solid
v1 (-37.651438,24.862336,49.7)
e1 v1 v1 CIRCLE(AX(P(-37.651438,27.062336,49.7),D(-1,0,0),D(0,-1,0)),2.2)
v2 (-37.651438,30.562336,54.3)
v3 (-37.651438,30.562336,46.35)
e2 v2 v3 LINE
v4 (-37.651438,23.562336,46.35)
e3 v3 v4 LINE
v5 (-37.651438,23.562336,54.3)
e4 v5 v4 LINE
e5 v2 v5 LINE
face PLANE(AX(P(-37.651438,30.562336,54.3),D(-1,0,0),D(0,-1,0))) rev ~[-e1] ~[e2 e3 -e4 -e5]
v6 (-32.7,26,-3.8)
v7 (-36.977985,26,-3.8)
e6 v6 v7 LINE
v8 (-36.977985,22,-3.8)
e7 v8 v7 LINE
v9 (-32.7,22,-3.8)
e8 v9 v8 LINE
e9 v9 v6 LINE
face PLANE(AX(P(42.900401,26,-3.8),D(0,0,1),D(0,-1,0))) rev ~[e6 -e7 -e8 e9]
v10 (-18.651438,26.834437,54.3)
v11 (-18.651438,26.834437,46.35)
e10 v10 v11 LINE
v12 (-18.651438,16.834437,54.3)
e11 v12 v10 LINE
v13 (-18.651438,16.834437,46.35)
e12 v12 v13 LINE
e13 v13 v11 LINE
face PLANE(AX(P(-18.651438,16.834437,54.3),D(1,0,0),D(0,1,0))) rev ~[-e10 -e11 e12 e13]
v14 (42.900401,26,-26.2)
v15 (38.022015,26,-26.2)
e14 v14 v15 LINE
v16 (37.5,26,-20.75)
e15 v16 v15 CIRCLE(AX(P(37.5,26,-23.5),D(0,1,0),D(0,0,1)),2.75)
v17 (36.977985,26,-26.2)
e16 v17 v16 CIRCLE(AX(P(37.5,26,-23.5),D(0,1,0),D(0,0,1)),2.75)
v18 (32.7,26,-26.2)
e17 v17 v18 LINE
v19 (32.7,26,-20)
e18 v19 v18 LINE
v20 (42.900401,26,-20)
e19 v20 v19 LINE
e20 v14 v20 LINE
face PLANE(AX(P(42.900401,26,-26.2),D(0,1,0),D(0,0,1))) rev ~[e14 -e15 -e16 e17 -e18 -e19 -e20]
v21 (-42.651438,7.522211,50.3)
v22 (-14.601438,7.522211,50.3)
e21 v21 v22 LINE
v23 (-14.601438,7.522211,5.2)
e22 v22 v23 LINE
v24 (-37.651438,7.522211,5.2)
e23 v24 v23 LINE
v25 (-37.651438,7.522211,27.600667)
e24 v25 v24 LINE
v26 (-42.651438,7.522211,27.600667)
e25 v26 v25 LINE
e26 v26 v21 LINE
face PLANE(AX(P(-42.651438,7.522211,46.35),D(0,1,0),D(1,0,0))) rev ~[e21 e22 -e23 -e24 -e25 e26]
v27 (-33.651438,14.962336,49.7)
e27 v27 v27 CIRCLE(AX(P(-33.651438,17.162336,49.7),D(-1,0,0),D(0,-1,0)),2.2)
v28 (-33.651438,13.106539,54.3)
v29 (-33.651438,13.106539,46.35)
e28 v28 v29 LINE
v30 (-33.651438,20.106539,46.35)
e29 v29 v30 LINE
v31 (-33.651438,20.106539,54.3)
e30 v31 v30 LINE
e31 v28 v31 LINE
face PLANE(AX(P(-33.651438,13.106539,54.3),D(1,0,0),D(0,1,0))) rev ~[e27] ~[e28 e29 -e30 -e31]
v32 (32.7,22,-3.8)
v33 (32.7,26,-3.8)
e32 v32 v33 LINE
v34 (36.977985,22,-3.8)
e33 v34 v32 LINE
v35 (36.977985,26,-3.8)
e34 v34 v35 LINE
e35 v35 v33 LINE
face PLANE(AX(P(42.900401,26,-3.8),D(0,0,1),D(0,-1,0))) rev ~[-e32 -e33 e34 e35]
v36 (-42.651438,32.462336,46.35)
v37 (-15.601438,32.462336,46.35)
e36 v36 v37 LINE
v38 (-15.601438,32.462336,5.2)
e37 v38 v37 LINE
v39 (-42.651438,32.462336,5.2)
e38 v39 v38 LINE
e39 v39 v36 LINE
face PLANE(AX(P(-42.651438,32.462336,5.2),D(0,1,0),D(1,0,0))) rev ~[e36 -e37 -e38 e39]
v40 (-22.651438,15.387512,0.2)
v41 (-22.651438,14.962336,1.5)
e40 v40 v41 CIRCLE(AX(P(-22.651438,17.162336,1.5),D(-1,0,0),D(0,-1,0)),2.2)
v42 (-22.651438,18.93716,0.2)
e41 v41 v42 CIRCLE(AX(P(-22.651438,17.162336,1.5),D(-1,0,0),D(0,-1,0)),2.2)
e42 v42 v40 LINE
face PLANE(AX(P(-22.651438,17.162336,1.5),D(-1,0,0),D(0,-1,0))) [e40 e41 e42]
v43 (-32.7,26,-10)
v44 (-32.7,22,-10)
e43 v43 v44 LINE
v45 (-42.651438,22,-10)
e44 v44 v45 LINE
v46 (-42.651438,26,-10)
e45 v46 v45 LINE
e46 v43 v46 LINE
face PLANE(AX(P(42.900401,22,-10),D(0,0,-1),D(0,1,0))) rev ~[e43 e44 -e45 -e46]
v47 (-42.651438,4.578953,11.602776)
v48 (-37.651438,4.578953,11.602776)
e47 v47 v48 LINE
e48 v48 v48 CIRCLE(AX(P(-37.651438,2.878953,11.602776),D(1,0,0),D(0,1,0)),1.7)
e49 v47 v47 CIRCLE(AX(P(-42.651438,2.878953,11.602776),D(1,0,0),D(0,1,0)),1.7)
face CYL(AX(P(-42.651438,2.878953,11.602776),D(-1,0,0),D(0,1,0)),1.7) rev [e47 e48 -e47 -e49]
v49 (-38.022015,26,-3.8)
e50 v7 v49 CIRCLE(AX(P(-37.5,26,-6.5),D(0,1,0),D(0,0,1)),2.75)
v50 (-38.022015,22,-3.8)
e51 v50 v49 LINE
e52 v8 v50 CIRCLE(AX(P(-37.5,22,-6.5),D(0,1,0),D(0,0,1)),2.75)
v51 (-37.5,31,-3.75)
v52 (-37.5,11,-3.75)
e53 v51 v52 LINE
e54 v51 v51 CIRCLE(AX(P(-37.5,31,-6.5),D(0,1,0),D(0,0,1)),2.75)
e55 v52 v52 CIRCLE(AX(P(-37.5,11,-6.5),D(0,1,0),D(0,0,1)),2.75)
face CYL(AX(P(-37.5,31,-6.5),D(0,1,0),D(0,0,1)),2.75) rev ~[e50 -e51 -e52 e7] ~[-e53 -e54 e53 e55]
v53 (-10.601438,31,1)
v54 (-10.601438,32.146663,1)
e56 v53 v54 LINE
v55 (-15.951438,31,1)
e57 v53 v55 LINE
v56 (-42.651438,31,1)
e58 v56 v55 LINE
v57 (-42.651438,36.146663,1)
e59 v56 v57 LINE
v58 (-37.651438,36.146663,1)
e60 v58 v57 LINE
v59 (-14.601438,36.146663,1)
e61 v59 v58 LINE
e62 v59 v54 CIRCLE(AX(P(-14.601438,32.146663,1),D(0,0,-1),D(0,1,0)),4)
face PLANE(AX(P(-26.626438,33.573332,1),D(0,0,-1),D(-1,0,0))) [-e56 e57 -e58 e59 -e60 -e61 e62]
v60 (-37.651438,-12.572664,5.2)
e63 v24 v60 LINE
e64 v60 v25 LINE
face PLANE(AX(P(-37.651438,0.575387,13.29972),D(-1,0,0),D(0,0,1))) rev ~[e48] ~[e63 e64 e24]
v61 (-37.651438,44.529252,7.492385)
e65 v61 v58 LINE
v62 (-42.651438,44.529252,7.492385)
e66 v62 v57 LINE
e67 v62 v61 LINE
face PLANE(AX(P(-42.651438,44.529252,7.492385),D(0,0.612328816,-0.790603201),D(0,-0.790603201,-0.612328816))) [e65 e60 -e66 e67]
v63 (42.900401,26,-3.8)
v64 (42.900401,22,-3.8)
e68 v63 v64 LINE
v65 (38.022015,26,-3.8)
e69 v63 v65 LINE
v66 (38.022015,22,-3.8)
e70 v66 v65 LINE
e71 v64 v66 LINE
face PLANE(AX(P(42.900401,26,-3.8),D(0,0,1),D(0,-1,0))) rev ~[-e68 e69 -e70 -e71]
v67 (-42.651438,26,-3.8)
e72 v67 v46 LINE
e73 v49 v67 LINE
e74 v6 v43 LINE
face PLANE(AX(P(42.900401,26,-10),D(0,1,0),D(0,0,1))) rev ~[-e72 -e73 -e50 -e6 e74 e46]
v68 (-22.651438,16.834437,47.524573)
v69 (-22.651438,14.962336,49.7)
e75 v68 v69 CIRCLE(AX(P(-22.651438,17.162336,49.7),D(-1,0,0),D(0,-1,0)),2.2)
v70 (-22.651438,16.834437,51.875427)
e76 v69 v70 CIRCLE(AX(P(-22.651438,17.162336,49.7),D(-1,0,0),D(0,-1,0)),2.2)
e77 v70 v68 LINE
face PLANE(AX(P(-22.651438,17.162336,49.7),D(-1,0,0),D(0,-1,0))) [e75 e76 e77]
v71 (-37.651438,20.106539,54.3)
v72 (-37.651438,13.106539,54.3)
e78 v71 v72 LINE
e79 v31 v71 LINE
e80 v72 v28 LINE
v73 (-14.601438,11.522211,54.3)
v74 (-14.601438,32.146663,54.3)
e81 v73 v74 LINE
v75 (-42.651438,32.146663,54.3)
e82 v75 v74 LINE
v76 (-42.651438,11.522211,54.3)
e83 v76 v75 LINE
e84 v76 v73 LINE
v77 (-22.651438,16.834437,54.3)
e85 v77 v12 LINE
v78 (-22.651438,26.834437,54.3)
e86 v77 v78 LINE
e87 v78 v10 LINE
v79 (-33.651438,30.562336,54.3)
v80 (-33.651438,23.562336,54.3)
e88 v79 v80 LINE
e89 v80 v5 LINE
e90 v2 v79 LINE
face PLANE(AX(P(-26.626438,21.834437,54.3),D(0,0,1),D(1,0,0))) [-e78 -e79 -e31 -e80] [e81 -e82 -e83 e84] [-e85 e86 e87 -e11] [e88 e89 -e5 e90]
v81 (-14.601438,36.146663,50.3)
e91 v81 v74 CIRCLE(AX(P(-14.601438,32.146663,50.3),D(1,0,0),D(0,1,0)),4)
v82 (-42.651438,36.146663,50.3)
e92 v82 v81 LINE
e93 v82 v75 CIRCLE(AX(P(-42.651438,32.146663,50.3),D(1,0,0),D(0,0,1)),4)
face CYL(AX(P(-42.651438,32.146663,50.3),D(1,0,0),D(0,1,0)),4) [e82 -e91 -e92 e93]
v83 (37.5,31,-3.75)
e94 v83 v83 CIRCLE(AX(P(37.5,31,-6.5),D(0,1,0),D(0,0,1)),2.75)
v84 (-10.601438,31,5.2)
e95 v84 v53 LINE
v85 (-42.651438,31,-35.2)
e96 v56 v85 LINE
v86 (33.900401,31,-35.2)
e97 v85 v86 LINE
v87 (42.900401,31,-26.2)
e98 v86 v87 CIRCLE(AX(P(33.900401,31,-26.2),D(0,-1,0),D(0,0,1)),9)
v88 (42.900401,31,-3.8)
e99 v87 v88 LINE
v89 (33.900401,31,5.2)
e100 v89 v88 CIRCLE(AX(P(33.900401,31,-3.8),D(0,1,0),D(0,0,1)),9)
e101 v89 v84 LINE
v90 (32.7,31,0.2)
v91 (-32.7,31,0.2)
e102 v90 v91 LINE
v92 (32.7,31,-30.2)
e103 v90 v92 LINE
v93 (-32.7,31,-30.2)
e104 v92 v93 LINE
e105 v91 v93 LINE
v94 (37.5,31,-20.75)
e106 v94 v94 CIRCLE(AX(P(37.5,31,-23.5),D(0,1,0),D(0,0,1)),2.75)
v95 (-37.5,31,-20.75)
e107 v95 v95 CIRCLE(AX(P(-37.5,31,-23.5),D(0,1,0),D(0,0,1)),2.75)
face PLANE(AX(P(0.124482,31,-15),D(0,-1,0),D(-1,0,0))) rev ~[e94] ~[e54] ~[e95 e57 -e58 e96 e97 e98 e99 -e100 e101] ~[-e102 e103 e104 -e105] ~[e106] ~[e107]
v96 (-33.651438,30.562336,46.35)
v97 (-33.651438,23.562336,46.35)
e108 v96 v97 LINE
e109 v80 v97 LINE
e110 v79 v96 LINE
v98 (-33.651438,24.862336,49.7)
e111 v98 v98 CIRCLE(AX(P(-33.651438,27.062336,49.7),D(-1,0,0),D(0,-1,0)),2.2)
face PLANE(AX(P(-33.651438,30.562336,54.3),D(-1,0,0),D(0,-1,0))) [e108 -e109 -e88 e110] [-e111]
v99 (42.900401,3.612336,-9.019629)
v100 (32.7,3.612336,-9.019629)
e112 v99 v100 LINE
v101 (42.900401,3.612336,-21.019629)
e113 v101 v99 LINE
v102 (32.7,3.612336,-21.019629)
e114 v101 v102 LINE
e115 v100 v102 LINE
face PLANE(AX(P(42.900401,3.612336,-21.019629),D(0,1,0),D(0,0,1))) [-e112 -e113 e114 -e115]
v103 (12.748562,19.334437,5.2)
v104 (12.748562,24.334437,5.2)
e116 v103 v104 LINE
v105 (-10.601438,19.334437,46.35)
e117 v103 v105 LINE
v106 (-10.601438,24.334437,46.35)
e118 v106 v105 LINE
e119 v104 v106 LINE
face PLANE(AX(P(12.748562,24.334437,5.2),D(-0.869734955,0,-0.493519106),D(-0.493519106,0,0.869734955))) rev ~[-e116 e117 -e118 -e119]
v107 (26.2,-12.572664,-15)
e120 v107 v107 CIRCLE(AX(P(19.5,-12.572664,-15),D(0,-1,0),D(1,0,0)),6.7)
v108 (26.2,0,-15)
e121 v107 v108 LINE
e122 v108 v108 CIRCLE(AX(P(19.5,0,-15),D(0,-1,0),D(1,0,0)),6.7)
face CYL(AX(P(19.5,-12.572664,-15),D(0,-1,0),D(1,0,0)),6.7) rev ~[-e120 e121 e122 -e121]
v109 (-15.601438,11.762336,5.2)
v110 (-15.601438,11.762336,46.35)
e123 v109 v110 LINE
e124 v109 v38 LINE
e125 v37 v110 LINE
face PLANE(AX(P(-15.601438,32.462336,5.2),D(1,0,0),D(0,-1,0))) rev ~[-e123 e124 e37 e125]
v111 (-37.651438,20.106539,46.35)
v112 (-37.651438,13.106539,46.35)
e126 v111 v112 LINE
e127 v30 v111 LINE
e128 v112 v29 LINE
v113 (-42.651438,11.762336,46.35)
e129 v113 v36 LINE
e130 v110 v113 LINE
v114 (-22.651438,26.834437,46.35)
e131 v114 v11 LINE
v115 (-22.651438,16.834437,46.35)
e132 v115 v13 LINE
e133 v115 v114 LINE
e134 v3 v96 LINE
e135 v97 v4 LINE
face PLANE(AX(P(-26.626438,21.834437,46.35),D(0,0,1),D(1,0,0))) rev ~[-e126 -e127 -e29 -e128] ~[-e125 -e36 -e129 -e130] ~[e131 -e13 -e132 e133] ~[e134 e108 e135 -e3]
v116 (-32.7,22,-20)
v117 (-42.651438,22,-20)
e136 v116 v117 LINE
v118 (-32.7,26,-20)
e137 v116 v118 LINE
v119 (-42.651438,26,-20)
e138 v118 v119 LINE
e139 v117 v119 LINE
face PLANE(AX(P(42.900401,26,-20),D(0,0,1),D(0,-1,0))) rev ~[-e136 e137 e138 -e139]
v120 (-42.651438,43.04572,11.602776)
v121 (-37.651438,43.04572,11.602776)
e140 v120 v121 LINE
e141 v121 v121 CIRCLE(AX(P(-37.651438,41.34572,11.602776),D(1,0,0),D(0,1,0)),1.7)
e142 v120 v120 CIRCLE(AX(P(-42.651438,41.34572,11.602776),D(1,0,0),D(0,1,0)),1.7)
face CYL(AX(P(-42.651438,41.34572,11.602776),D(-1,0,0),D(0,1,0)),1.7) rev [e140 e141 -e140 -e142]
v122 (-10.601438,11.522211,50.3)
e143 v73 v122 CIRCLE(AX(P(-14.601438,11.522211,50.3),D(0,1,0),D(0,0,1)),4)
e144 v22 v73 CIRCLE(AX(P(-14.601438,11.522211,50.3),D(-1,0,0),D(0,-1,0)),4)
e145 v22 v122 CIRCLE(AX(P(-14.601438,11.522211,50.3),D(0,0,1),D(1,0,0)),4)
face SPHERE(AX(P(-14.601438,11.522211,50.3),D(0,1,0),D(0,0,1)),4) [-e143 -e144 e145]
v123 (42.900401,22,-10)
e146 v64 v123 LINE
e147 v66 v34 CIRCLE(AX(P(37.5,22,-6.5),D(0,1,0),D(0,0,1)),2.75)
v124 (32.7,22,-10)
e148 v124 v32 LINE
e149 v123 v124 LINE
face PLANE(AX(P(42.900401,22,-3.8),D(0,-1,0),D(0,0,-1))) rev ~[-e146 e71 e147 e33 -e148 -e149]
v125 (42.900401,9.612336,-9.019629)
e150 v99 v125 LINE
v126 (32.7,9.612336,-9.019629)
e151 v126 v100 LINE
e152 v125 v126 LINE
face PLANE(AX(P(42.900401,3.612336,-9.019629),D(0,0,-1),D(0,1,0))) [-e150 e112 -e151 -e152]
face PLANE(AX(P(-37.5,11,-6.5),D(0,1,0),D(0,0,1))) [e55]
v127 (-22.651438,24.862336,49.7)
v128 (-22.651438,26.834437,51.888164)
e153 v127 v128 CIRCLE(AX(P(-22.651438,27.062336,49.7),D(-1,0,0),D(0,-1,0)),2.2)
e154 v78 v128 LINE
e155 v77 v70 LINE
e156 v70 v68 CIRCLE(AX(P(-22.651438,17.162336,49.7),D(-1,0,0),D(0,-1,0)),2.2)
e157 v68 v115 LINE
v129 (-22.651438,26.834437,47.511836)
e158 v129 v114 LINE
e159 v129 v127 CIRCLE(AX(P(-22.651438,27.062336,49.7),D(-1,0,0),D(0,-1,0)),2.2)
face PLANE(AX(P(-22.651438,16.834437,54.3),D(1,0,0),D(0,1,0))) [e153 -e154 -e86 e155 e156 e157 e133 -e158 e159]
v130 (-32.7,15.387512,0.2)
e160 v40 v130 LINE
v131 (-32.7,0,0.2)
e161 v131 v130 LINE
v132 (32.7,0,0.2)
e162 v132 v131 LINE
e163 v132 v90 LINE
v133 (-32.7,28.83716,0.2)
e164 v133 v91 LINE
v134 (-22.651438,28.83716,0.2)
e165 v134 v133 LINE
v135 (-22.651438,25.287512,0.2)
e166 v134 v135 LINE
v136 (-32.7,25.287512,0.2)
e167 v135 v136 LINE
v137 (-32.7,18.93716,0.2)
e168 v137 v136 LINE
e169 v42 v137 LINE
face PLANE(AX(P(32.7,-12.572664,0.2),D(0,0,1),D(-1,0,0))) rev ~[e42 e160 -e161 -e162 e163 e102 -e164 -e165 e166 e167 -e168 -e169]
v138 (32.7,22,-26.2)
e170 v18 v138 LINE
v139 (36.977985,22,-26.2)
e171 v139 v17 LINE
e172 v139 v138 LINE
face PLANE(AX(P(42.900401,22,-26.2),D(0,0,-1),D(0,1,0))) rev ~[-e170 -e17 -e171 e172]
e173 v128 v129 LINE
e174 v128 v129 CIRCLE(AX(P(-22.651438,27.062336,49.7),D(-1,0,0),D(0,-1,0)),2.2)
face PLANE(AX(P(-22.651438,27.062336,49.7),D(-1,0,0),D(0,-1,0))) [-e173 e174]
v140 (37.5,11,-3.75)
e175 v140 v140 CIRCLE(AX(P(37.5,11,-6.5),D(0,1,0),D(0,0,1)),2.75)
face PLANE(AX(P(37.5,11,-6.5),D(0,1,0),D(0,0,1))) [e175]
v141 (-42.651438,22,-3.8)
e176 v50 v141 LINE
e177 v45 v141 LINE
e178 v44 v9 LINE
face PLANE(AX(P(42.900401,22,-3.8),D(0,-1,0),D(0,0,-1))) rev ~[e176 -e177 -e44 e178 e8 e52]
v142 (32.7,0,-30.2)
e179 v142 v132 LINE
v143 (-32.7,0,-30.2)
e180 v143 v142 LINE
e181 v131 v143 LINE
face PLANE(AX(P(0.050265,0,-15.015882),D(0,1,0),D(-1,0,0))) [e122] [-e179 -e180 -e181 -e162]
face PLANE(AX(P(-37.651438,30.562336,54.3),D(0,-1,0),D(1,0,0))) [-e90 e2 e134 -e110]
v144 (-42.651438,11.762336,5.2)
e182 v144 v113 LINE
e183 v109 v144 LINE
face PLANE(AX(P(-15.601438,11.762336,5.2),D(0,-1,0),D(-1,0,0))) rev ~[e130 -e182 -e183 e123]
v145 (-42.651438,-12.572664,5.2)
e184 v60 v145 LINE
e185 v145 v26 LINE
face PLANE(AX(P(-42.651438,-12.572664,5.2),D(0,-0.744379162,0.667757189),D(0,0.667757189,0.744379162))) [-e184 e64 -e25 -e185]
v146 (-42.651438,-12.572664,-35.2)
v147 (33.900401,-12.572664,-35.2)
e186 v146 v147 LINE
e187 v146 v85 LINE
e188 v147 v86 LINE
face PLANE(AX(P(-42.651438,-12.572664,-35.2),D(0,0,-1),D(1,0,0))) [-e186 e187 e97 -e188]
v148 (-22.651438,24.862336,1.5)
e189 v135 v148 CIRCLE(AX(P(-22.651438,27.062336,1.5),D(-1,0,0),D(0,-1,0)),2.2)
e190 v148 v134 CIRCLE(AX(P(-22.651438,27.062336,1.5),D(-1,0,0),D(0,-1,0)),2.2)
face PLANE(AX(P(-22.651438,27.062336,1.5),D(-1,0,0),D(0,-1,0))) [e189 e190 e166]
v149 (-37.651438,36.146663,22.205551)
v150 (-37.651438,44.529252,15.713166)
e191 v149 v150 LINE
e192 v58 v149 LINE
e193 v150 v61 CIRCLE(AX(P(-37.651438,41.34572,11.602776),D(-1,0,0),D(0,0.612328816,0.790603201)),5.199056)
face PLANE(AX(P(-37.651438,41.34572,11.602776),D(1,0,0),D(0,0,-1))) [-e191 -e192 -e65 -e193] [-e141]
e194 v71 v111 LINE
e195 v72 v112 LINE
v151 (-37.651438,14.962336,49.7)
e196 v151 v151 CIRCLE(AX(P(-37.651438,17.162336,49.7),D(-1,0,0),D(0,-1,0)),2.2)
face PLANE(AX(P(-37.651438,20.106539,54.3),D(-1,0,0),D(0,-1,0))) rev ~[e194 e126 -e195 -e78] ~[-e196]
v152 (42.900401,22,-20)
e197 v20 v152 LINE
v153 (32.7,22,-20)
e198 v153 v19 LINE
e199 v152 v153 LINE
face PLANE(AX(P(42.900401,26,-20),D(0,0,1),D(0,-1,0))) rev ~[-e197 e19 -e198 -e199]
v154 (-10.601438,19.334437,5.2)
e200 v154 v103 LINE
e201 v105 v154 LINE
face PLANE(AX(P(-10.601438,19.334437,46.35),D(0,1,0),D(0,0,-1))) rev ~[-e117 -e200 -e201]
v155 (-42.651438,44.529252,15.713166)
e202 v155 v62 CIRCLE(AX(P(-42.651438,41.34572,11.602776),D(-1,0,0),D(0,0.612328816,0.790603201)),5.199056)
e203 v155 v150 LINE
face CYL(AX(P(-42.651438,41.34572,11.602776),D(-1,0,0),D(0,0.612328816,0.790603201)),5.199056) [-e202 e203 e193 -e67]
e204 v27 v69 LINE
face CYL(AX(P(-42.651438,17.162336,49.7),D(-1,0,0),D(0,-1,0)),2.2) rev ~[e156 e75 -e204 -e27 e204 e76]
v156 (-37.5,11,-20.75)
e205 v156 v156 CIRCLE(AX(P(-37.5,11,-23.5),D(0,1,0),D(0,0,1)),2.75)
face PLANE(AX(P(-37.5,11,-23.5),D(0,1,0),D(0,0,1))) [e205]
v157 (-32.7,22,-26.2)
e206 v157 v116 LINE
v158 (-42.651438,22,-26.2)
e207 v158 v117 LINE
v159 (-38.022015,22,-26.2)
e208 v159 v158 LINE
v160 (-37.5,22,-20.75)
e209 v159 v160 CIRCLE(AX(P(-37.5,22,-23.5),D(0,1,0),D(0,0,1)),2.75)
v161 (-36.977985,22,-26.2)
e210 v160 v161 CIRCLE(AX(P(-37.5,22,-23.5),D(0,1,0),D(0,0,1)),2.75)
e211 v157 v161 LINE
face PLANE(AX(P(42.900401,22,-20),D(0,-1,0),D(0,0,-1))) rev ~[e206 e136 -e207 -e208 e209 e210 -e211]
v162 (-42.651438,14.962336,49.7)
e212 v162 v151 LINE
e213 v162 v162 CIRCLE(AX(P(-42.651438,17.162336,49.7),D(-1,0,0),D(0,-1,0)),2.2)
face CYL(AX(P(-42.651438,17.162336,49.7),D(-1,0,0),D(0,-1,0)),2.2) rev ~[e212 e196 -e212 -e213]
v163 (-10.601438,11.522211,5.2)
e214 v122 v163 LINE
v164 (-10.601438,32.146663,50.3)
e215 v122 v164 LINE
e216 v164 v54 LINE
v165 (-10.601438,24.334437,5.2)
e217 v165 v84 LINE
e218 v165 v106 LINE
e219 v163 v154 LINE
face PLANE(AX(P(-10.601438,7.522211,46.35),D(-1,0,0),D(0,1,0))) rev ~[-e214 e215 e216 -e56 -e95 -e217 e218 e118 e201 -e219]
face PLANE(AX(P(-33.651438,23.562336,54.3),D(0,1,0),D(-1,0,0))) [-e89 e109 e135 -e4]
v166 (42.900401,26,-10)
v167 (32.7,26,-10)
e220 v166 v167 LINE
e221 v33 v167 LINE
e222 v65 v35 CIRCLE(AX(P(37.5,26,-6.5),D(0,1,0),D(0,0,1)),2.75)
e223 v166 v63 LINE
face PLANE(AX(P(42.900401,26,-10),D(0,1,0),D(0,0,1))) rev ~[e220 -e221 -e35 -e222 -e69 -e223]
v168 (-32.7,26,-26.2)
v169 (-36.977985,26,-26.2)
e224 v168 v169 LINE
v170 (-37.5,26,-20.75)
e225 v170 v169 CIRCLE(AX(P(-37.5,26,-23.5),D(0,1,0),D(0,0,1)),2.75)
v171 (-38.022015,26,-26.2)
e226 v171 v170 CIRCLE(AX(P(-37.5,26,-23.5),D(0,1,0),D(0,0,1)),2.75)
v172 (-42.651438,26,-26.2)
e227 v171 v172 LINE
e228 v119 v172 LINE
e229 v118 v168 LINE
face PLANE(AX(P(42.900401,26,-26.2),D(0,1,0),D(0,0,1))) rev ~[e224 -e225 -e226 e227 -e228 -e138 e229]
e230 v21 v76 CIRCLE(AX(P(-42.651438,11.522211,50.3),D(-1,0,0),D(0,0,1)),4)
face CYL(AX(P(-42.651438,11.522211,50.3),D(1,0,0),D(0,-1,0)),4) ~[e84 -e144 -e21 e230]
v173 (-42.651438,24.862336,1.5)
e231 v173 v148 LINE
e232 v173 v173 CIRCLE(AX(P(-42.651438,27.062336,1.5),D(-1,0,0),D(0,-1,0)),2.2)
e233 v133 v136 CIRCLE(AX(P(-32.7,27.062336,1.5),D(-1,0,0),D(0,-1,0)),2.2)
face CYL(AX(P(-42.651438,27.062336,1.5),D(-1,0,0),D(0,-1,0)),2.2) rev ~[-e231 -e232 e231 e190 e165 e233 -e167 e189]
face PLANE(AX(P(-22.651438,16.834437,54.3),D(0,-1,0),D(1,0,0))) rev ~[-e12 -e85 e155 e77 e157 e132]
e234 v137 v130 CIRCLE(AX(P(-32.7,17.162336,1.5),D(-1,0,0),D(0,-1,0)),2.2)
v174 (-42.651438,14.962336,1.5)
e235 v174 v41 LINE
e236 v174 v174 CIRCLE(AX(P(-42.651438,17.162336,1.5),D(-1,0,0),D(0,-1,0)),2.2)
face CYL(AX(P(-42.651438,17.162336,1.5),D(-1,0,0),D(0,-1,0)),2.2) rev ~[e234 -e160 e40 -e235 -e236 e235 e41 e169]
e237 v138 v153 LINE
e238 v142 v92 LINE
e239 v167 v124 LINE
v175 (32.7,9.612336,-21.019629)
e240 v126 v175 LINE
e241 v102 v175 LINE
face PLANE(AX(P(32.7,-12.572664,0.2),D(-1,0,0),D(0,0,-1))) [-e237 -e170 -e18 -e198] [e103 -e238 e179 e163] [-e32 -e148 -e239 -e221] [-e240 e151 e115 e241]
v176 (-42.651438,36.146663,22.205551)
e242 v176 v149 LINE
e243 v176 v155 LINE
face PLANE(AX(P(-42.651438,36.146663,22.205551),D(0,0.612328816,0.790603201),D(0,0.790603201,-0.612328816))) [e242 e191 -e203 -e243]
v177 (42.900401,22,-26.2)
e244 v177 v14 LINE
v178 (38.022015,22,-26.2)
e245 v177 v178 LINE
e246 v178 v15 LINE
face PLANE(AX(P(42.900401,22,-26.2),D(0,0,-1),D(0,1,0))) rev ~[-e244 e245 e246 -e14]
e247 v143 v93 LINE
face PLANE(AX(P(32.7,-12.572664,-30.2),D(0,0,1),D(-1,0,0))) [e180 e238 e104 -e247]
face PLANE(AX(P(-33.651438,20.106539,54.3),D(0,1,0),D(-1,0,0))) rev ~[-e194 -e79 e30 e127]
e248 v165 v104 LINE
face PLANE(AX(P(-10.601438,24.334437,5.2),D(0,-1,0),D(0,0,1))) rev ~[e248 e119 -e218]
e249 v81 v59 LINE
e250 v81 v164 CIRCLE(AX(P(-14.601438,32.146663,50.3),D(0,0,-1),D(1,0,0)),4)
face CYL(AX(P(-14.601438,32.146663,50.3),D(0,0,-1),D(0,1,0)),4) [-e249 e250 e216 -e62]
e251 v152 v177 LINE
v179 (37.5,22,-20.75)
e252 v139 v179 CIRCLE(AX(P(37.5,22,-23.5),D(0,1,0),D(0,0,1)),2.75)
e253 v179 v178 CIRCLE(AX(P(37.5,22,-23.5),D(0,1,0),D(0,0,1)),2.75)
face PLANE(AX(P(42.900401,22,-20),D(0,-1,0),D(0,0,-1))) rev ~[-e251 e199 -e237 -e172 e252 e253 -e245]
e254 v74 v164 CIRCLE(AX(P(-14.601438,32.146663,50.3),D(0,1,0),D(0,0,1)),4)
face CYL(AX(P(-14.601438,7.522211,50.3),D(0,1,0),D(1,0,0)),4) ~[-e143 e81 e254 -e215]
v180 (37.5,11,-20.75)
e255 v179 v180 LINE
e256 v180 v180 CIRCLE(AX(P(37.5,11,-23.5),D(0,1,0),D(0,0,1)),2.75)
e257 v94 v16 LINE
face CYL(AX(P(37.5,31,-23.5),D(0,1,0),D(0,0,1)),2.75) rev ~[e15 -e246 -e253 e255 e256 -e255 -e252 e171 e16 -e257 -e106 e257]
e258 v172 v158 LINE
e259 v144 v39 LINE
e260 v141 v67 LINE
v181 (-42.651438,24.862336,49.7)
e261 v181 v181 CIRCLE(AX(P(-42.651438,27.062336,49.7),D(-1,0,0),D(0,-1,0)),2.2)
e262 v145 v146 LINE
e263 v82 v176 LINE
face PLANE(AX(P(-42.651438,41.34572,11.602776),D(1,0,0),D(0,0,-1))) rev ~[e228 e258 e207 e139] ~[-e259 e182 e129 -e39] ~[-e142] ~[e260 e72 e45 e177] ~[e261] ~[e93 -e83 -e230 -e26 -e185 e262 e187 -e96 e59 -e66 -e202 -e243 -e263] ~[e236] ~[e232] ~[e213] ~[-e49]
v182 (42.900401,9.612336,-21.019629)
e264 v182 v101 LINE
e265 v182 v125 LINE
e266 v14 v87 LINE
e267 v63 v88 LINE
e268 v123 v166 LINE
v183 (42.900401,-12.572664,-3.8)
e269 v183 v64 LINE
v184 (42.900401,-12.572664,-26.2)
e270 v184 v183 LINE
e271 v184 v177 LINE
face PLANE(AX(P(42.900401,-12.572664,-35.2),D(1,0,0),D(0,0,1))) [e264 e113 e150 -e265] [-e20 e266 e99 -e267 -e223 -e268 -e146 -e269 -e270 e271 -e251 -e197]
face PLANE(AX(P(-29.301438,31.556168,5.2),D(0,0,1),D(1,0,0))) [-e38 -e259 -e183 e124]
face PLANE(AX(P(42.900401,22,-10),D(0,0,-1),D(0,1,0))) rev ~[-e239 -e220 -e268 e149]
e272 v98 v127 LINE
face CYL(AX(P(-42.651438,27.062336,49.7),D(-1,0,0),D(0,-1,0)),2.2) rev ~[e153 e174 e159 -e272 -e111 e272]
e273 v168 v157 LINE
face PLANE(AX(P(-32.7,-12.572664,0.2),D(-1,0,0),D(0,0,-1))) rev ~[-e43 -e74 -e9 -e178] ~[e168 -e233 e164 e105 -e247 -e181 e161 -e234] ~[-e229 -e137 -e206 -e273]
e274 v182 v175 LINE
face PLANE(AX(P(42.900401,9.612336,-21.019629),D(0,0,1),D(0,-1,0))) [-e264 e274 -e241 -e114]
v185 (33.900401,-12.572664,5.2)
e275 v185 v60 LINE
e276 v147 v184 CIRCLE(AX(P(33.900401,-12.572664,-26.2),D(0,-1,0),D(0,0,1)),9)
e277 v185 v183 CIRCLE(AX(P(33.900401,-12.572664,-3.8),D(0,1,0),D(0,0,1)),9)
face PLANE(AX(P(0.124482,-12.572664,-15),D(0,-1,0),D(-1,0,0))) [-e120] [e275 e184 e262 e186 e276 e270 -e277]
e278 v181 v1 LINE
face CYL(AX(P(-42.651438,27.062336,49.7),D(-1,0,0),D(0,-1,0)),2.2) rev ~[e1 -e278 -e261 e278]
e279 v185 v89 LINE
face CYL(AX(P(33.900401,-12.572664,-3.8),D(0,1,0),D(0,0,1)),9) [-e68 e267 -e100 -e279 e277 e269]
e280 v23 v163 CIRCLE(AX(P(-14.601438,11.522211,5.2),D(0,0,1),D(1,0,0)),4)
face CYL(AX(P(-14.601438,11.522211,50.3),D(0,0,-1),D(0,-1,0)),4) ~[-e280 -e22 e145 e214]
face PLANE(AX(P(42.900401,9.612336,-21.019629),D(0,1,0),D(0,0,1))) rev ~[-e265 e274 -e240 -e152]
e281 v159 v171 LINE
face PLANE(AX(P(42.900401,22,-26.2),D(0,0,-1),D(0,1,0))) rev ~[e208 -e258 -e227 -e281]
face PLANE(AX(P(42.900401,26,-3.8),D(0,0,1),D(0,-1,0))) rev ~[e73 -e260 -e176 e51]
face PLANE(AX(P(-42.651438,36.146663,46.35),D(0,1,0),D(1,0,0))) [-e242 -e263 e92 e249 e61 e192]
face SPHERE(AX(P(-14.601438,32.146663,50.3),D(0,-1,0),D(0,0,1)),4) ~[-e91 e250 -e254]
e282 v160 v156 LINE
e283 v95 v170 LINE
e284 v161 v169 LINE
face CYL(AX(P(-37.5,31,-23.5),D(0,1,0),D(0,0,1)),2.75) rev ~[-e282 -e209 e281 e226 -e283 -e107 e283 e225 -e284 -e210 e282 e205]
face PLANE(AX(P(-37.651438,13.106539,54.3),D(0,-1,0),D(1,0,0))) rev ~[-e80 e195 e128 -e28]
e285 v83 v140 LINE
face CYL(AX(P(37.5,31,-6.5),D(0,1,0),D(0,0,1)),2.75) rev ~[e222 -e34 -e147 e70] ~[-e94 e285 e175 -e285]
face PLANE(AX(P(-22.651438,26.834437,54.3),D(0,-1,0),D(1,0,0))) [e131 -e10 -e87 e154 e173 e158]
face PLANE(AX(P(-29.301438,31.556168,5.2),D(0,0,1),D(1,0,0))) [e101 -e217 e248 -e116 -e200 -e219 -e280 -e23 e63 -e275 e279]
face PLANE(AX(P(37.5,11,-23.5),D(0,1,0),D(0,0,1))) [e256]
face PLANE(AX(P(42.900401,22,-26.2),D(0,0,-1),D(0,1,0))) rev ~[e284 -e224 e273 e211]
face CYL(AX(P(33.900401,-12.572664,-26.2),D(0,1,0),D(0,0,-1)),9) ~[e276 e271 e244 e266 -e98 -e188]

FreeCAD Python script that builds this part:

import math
import FreeCAD as App
import Part
import Sketcher
from FreeCAD import Vector


def edges_at(feature, points):
    """Names of the edges that pass closest to the given points."""
    edges = feature.Shape.Edges
    near = lambda p: min(range(len(edges)), key=lambda i: edges[i].distToShape(Part.Vertex(*p))[0])
    return sorted({f"Edge{near(p) + 1}" for p in points})


def add_polygon(sketch, points):
    """Adds a closed chain of lines whose ends are joined by coincident constraints."""
    first, n = sketch.GeometryCount, len(points)
    for a, b in zip(points, points[1:] + points[:1]):
        sketch.addGeometry(Part.LineSegment(App.Vector(*a, 0), App.Vector(*b, 0)), False)
    for i in range(n):
        sketch.addConstraint(Sketcher.Constraint("Coincident", first + i, 2, first + (i + 1) % n, 1))

doc = App.newDocument("Part")
body = doc.addObject("PartDesign::Body", "Body")

# Sketch on XZ plane
sketch1 = doc.addObject("Sketcher::SketchObject", "Sketch")
body.addObject(sketch1)
sketch1.AttachmentSupport = (doc.XZ_Plane, [""])
sketch1.MapMode = "FlatFace"
add_polygon(sketch1, [(-32.7, -30.2), (32.900401, -30.2), (32.7, 0.2), (-32.7, 0.2)])  # lines 0-3
sketch1.addConstraint([
    Sketcher.Constraint("Horizontal", 0),
    Sketcher.Constraint("Horizontal", 2),
    Sketcher.Constraint("Vertical", 3),
    Sketcher.Constraint("DistanceX", 2, 2, 2, 1, 65.4),
    Sketcher.Constraint("DistanceY", 3, 2, 3, 1, 30.4),
    Sketcher.Constraint("DistanceY", 0, 2, -1, 1, 30.2),
    Sketcher.Constraint("DistanceX", -1, 1, 1, 2, 32.7),
    Sketcher.Constraint("DistanceX", 0, 1, 0, 2, 65.600401),
])
pad1 = doc.addObject("PartDesign::Pad", "Pad")
body.addObject(pad1)
pad1.Profile = sketch1
pad1.Length = 12.572664

# Sketch on XZ plane
sketch2 = doc.addObject("Sketcher::SketchObject", "Sketch001")
body.addObject(sketch2)
sketch2.AttachmentSupport = (doc.XZ_Plane, [""])
sketch2.MapMode = "FlatFace"
sketch2.AttachmentOffset = App.Placement(Vector(0, 0, 12.572664), App.Rotation())
add_polygon(sketch2, [(-42.651438, 5.2), (-42.651438, -35.2), (42.900401, -35.2), (42.900401, 5.2)])  # lines 0-3
add_polygon(sketch2, [(-32.7, 0.2), (32.7, 0.2), (32.7, -30.2), (-32.7, -30.2)])  # lines 4-7
sketch2.addConstraint([
    Sketcher.Constraint("Vertical", 0),
    Sketcher.Constraint("Horizontal", 1),
    Sketcher.Constraint("Vertical", 2),
    Sketcher.Constraint("Horizontal", 3),
    Sketcher.Constraint("Horizontal", 4),
    Sketcher.Constraint("Vertical", 5),
    Sketcher.Constraint("Horizontal", 6),
    Sketcher.Constraint("Vertical", 7),
    Sketcher.Constraint("DistanceX", 4, 1, 4, 2, 65.4),
    Sketcher.Constraint("DistanceY", 0, 2, 0, 1, 40.4),
    Sketcher.Constraint("DistanceY", 5, 2, 5, 1, 30.4),
    Sketcher.Constraint("DistanceY", 4, 2, 2, 2, 5.0),
    Sketcher.Constraint("DistanceY", 0, 2, -1, 1, 35.2),
    Sketcher.Constraint("DistanceX", -1, 1, 4, 2, 32.7),
    Sketcher.Constraint("DistanceX", 1, 1, 1, 2, 85.551838),
    Sketcher.Constraint("DistanceX", -1, 1, 1, 2, 42.900401),
])
pad2 = doc.addObject("PartDesign::Pad", "Pad001")
body.addObject(pad2)
pad2.Profile = sketch2
pad2.Length = 43.572664
pad2.Reversed = True
doc.recompute()

fillet = doc.addObject("PartDesign::Fillet", "Fillet")
body.addObject(fillet)
fillet.Base = (pad2, edges_at(pad2, [(42.9, 9.214, -35.2), (42.9, 9.214, 5.2)]))
fillet.Radius = 9

# Sketch on XZ plane
sketch3 = doc.addObject("Sketcher::SketchObject", "Sketch002")
body.addObject(sketch3)
sketch3.AttachmentSupport = (doc.XZ_Plane, [""])
sketch3.MapMode = "FlatFace"
sketch3.AttachmentOffset = App.Placement(Vector(0, 0, -31), App.Rotation())
sketch3.addGeometry([
    Part.Circle(Vector(-37.5, -23.5, 0), Vector(0, 0, 1), 2.75),
    Part.Circle(Vector(-37.5, -6.5, 0), Vector(0, 0, 1), 2.75),
    Part.Circle(Vector(37.5, -6.5, 0), Vector(0, 0, 1), 2.75),
    Part.Circle(Vector(37.5, -23.5, 0), Vector(0, 0, 1), 2.75),
], False)
sketch3.addConstraint([
    Sketcher.Constraint("Equal", 0, 1),
    Sketcher.Constraint("Equal", 1, 2),
    Sketcher.Constraint("Equal", 2, 3),
    Sketcher.Constraint("Symmetric", 1, 3, 2, 3, -2),
    Sketcher.Constraint("Symmetric", 0, 3, 3, 3, -2),
    Sketcher.Constraint("Vertical", 0, 3, 1, 3),
    Sketcher.Constraint("Diameter", 0, 5.5),
    Sketcher.Constraint("DistanceY", 0, 3, 1, 3, 17.0),
    Sketcher.Constraint("DistanceX", 1, 3, 2, 3, 75.0),
    Sketcher.Constraint("DistanceY", 0, 3, -1, 1, 23.5),
])
pocket1 = doc.addObject("PartDesign::Pocket", "Pocket")
body.addObject(pocket1)
pocket1.Profile = sketch3
pocket1.Length = 20
pocket1.Reversed = True

# Sketch on YZ plane
sketch4 = doc.addObject("Sketcher::SketchObject", "Sketch003")
body.addObject(sketch4)
sketch4.AttachmentSupport = (doc.YZ_Plane, [""])
sketch4.MapMode = "FlatFace"
sketch4.AttachmentOffset = App.Placement(Vector(0, 0, 42.900401), App.Rotation())
add_polygon(sketch4, [(26, -3.8), (22, -3.8), (22, -10), (26, -10)])  # lines 0-3
add_polygon(sketch4, [(26, -26.2), (26, -20), (22, -20), (22, -26.2)])  # lines 4-7
sketch4.addConstraint([
    Sketcher.Constraint("Horizontal", 0),
    Sketcher.Constraint("Vertical", 1),
    Sketcher.Constraint("Horizontal", 2),
    Sketcher.Constraint("Vertical", 3),
    Sketcher.Constraint("Vertical", 4),
    Sketcher.Constraint("Horizontal", 5),
    Sketcher.Constraint("Vertical", 6),
    Sketcher.Constraint("Horizontal", 7),
    Sketcher.Constraint("Vertical", 3, 2, 4, 2),
    Sketcher.Constraint("Vertical", 1, 2, 5, 2),
    Sketcher.Constraint("Equal", 3, 4),
    Sketcher.Constraint("DistanceX", 0, 2, 0, 1, 4.0),
    Sketcher.Constraint("DistanceY", 1, 2, 1, 1, 6.2),
    Sketcher.Constraint("DistanceX", -1, 1, 0, 2, 22.0),
    Sketcher.Constraint("DistanceY", 1, 2, -1, 1, 10.0),
    Sketcher.Constraint("DistanceY", 4, 2, -1, 1, 20.0),
])
pocket2 = doc.addObject("PartDesign::Pocket", "Pocket001")
body.addObject(pocket2)
pocket2.Profile = sketch4
pocket2.Length = 129

# Sketch on XZ plane
sketch5 = doc.addObject("Sketcher::SketchObject", "Sketch004")
body.addObject(sketch5)
sketch5.AttachmentSupport = (doc.XZ_Plane, [""])
sketch5.MapMode = "FlatFace"
sketch5.AttachmentOffset = App.Placement(Vector(0, 0, 12.572664), App.Rotation())
sketch5.addGeometry(Part.Circle(Vector(19.5, -15, 0), Vector(0, 0, 1), 6.7), False)
sketch5.addConstraint([
    Sketcher.Constraint("Diameter", 0, 13.4),
    Sketcher.Constraint("DistanceY", 0, 3, -1, 1, 15.0),
    Sketcher.Constraint("DistanceX", -1, 1, 0, 3, 19.5),
])
pocket3 = doc.addObject("PartDesign::Pocket", "Pocket002")
body.addObject(pocket3)
pocket3.Profile = sketch5
pocket3.Length = 129

# Sketch on YZ plane
sketch6 = doc.addObject("Sketcher::SketchObject", "Sketch005")
body.addObject(sketch6)
sketch6.AttachmentSupport = (doc.YZ_Plane, [""])
sketch6.MapMode = "FlatFace"
sketch6.AttachmentOffset = App.Placement(Vector(0, 0, 42.900401), App.Rotation())
add_polygon(sketch6, [(3.612336, -9.019629), (3.612336, -21.019629), (9.612336, -21.019629), (9.612336, -9.019629)])  # lines 0-3
sketch6.addConstraint([
    Sketcher.Constraint("Vertical", 0),
    Sketcher.Constraint("Horizontal", 1),
    Sketcher.Constraint("Vertical", 2),
    Sketcher.Constraint("Horizontal", 3),
    Sketcher.Constraint("DistanceX", 1, 1, 1, 2, 6.0),
    Sketcher.Constraint("DistanceY", 0, 2, 0, 1, 12.0),
    Sketcher.Constraint("DistanceY", 0, 2, -1, 1, 21.019629),
    Sketcher.Constraint("DistanceX", -1, 1, 0, 2, 3.612336),
])
pocket4 = doc.addObject("PartDesign::Pocket", "Pocket003")
body.addObject(pocket4)
pocket4.Profile = sketch6
pocket4.Length = 63

# Sketch on XY plane
sketch7 = doc.addObject("Sketcher::SketchObject", "Sketch006")
body.addObject(sketch7)
sketch7.AttachmentSupport = (doc.XY_Plane, [""])
sketch7.MapMode = "FlatFace"
sketch7.AttachmentOffset = App.Placement(Vector(0, 0, 5.2), App.Rotation())
add_polygon(sketch7, [(-42.651438, 32.112336), (-42.651438, 31), (-15.951438, 31), (-15.951438, 32.112336)])  # lines 0-3
sketch7.addConstraint([
    Sketcher.Constraint("Vertical", 0),
    Sketcher.Constraint("Horizontal", 1),
    Sketcher.Constraint("Vertical", 2),
    Sketcher.Constraint("Horizontal", 3),
    Sketcher.Constraint("DistanceX", 1, 1, 1, 2, 26.7),
    Sketcher.Constraint("DistanceY", -1, 1, 0, 2, 31.0),
    Sketcher.Constraint("DistanceY", 0, 2, 0, 1, 1.112336),
    Sketcher.Constraint("DistanceX", 0, 2, -1, 1, 42.651438),
])
pad3 = doc.addObject("PartDesign::Pad", "Pad002")
body.addObject(pad3)
pad3.Profile = sketch7
pad3.Length = 4.2
pad3.Reversed = True

# Sketch on XY plane
sketch8 = doc.addObject("Sketcher::SketchObject", "Sketch007")
body.addObject(sketch8)
sketch8.AttachmentSupport = (doc.XY_Plane, [""])
sketch8.MapMode = "FlatFace"
sketch8.AttachmentOffset = App.Placement(Vector(0, 0, 5.2), App.Rotation())
add_polygon(sketch8, [(-42.651438, 11.762336), (-42.651438, 7.522211), (-10.601438, 7.522211), (-10.601438, 36.146663), (-42.651438, 36.146663), (-42.651438, 32.462336), (-15.601438, 32.462336), (-15.601438, 11.762336)])  # lines 0-7
sketch8.addConstraint([
    Sketcher.Constraint("Vertical", 0),
    Sketcher.Constraint("Horizontal", 1),
    Sketcher.Constraint("Vertical", 2),
    Sketcher.Constraint("Horizontal", 3),
    Sketcher.Constraint("Vertical", 4),
    Sketcher.Constraint("Horizontal", 5),
    Sketcher.Constraint("Vertical", 6),
    Sketcher.Constraint("Horizontal", 7),
    Sketcher.Constraint("Vertical", 0, 2, 3, 2),
    Sketcher.Constraint("DistanceY", 6, 2, 6, 1, 20.7),
    Sketcher.Constraint("DistanceX", 5, 2, 2, 2, 5.0),
    Sketcher.Constraint("DistanceX", 1, 1, 1, 2, 32.05),
    Sketcher.Constraint("DistanceY", 0, 2, 0, 1, 4.240125),
    Sketcher.Constraint("DistanceY", 2, 1, 2, 2, 28.624452),
    Sketcher.Constraint("DistanceY", -1, 1, 0, 2, 7.522211),
    Sketcher.Constraint("DistanceX", 0, 2, -1, 1, 42.651438),
])
pad4 = doc.addObject("PartDesign::Pad", "Pad003")
body.addObject(pad4)
pad4.Profile = sketch8
pad4.Length = 41.15

# Sketch on XY plane
sketch9 = doc.addObject("Sketcher::SketchObject", "Sketch008")
body.addObject(sketch9)
sketch9.AttachmentSupport = (doc.XY_Plane, [""])
sketch9.MapMode = "FlatFace"
sketch9.AttachmentOffset = App.Placement(Vector(0, 0, 5.2), App.Rotation())
add_polygon(sketch9, [(-10.601438, 36.146663), (-10.601438, 31), (-42.651438, 31), (-42.651438, 36.146663)])  # lines 0-3
sketch9.addConstraint([
    Sketcher.Constraint("Vertical", 0),
    Sketcher.Constraint("Horizontal", 1),
    Sketcher.Constraint("Vertical", 2),
    Sketcher.Constraint("Horizontal", 3),
    Sketcher.Constraint("DistanceY", -1, 1, 0, 2, 31.0),
    Sketcher.Constraint("DistanceX", 1, 2, 1, 1, 32.05),
    Sketcher.Constraint("DistanceY", 0, 2, 0, 1, 5.146663),
    Sketcher.Constraint("DistanceX", 0, 2, -1, 1, 10.601438),
])
pad5 = doc.addObject("PartDesign::Pad", "Pad004")
body.addObject(pad5)
pad5.Profile = sketch9
pad5.Length = 4.2
pad5.Reversed = True

# Sketch on YZ plane
sketch10 = doc.addObject("Sketcher::SketchObject", "Sketch009")
body.addObject(sketch10)
sketch10.AttachmentSupport = (doc.YZ_Plane, [""])
sketch10.MapMode = "FlatFace"
sketch10.AttachmentOffset = App.Placement(Vector(0, 0, -10.601438), App.Rotation())
add_polygon(sketch10, [(19.334437, 46.35), (19.334437, 5.2), (24.334437, 5.2), (24.334437, 46.35)])  # lines 0-3
sketch10.addConstraint([
    Sketcher.Constraint("Vertical", 0),
    Sketcher.Constraint("Horizontal", 1),
    Sketcher.Constraint("Vertical", 2),
    Sketcher.Constraint("Horizontal", 3),
    Sketcher.Constraint("DistanceX", 1, 1, 1, 2, 5.0),
    Sketcher.Constraint("DistanceY", 0, 2, 0, 1, 41.15),
    Sketcher.Constraint("DistanceY", -1, 1, 0, 2, 5.2),
    Sketcher.Constraint("DistanceX", -1, 1, 0, 2, 19.334437),
])
pad6 = doc.addObject("PartDesign::Pad", "Pad005")
body.addObject(pad6)
pad6.Profile = sketch10
pad6.Length = 23.35

# Sketch on XZ plane
sketch11 = doc.addObject("Sketcher::SketchObject", "Sketch010")
body.addObject(sketch11)
sketch11.AttachmentSupport = (doc.XZ_Plane, [""])
sketch11.MapMode = "FlatFace"
sketch11.AttachmentOffset = App.Placement(Vector(0, 0, -24.334437), App.Rotation())
add_polygon(sketch11, [(12.748562, 5.2), (-10.601438, 46.35), (12.748562, 46.35)])  # lines 0-2
sketch11.addConstraint([
    Sketcher.Constraint("Horizontal", 1),
    Sketcher.Constraint("Vertical", 2),
    Sketcher.Constraint("DistanceX", 1, 1, 1, 2, 23.35),
    Sketcher.Constraint("DistanceY", 2, 2, 2, 1, 41.15),
    Sketcher.Constraint("DistanceY", -1, 1, 2, 2, 5.2),
    Sketcher.Constraint("DistanceX", 0, 2, -1, 1, 10.601438),
])
pocket5 = doc.addObject("PartDesign::Pocket", "Pocket004")
body.addObject(pocket5)
pocket5.Profile = sketch11
pocket5.Length = 23.35
pocket5.Reversed = True

# Sketch on YZ plane
sketch12 = doc.addObject("Sketcher::SketchObject", "Sketch011")
body.addObject(sketch12)
sketch12.AttachmentSupport = (doc.YZ_Plane, [""])
sketch12.MapMode = "FlatFace"
sketch12.AttachmentOffset = App.Placement(Vector(0, 0, -42.651438), App.Rotation())
add_polygon(sketch12, [(-12.572664, 5.2), (7.522211, 27.600667), (7.522211, 5.2)])  # lines 0-2
sketch12.addConstraint([
    Sketcher.Constraint("Vertical", 1),
    Sketcher.Constraint("Horizontal", 2),
    Sketcher.Constraint("DistanceY", -1, 1, 1, 2, 5.2),
    Sketcher.Constraint("DistanceX", 2, 2, 2, 1, 20.094875),
    Sketcher.Constraint("DistanceY", 1, 2, 1, 1, 22.400667),
    Sketcher.Constraint("DistanceX", -1, 1, 0, 2, 7.522211),
])
pad7 = doc.addObject("PartDesign::Pad", "Pad006")
body.addObject(pad7)
pad7.Profile = sketch12
pad7.Length = 5

# Sketch on XY plane
sketch13 = doc.addObject("Sketcher::SketchObject", "Sketch012")
body.addObject(sketch13)
sketch13.AttachmentSupport = (doc.XY_Plane, [""])
sketch13.MapMode = "FlatFace"
sketch13.AttachmentOffset = App.Placement(Vector(0, 0, 46.35), App.Rotation())
add_polygon(sketch13, [(-42.651438, 36.146663), (-42.651438, 7.522211), (-10.601438, 7.522211), (-10.601438, 36.146663)])  # lines 0-3
sketch13.addConstraint([
    Sketcher.Constraint("Vertical", 0),
    Sketcher.Constraint("Horizontal", 1),
    Sketcher.Constraint("Vertical", 2),
    Sketcher.Constraint("Horizontal", 3),
    Sketcher.Constraint("DistanceX", 1, 1, 1, 2, 32.05),
    Sketcher.Constraint("DistanceY", 0, 2, 0, 1, 28.624452),
    Sketcher.Constraint("DistanceY", -1, 1, 0, 2, 7.522211),
    Sketcher.Constraint("DistanceX", 0, 2, -1, 1, 42.651438),
])
pad8 = doc.addObject("PartDesign::Pad", "Pad007")
body.addObject(pad8)
pad8.Profile = sketch13
pad8.Length = 7.95
doc.recompute()

fillet2 = doc.addObject("PartDesign::Fillet", "Fillet001")
body.addObject(fillet2)
fillet2.Base = (pad8, edges_at(pad8, [(-10.601, 21.834, 54.3)]))
fillet2.Radius = 4
doc.recompute()

fillet3 = doc.addObject("PartDesign::Fillet", "Fillet002")
body.addObject(fillet3)
fillet3.Base = (fillet2, edges_at(fillet2, [
    (-28.626, 7.522, 54.3),
    (-28.626, 36.147, 54.3),
    (-10.601, 36.147, 25.65),
    (-11.773, 36.147, 53.128),
    (-10.601, 7.522, 27.75),
    (-11.773, 7.522, 53.128),
]))
fillet3.Radius = 4

# Sketch on YZ plane
sketch14 = doc.addObject("Sketcher::SketchObject", "Sketch013")
body.addObject(sketch14)
sketch14.AttachmentSupport = (doc.YZ_Plane, [""])
sketch14.MapMode = "FlatFace"
sketch14.AttachmentOffset = App.Placement(Vector(0, 0, -42.651438), App.Rotation())
sketch14.addGeometry([
    Part.Circle(Vector(27.062336, 49.7, 0), Vector(0, 0, 1), 2.2),
    Part.Circle(Vector(17.162336, 49.7, 0), Vector(0, 0, 1), 2.2),
    Part.Circle(Vector(27.062336, 1.5, 0), Vector(0, 0, 1), 2.2),
    Part.Circle(Vector(17.162336, 1.5, 0), Vector(0, 0, 1), 2.2),
], False)
sketch14.addConstraint([
    Sketcher.Constraint("Equal", 0, 1),
    Sketcher.Constraint("Equal", 1, 2),
    Sketcher.Constraint("Equal", 2, 3),
    Sketcher.Constraint("Horizontal", 0, 3, 1, 3),
    Sketcher.Constraint("Horizontal", 2, 3, 3, 3),
    Sketcher.Constraint("Vertical", 0, 3, 2, 3),
    Sketcher.Constraint("Vertical", 1, 3, 3, 3),
    Sketcher.Constraint("Diameter", 0, 4.4),
    Sketcher.Constraint("DistanceY", -1, 1, 0, 3, 49.7),
    Sketcher.Constraint("DistanceY", -1, 1, 2, 3, 1.5),
    Sketcher.Constraint("DistanceX", 1, 3, 0, 3, 9.9),
    Sketcher.Constraint("DistanceX", -1, 1, 0, 3, 27.062336),
])
pocket6 = doc.addObject("PartDesign::Pocket", "Pocket005")
body.addObject(pocket6)
pocket6.Profile = sketch14
pocket6.Length = 20
pocket6.Reversed = True

# Sketch on XY plane
sketch15 = doc.addObject("Sketcher::SketchObject", "Sketch014")
body.addObject(sketch15)
sketch15.AttachmentSupport = (doc.XY_Plane, [""])
sketch15.MapMode = "FlatFace"
sketch15.AttachmentOffset = App.Placement(Vector(0, 0, 54.3), App.Rotation())
add_polygon(sketch15, [(-37.651438, 23.562336), (-33.651438, 23.562336), (-33.651438, 30.562336), (-37.651438, 30.562336)])  # lines 0-3
add_polygon(sketch15, [(-33.651438, 20.106539), (-37.651438, 20.106539), (-37.651438, 13.106539), (-33.651438, 13.106539)])  # lines 4-7
sketch15.addConstraint([
    Sketcher.Constraint("Horizontal", 0),
    Sketcher.Constraint("Vertical", 1),
    Sketcher.Constraint("Horizontal", 2),
    Sketcher.Constraint("Vertical", 3),
    Sketcher.Constraint("Horizontal", 4),
    Sketcher.Constraint("Vertical", 5),
    Sketcher.Constraint("Horizontal", 6),
    Sketcher.Constraint("Vertical", 7),
    Sketcher.Constraint("Vertical", 3, 2, 4, 2),
    Sketcher.Constraint("Vertical", 1, 2, 6, 2),
    Sketcher.Constraint("Equal", 3, 5),
    Sketcher.Constraint("DistanceX", 0, 1, 0, 2, 4.0),
    Sketcher.Constraint("DistanceY", 1, 1, 1, 2, 7.0),
    Sketcher.Constraint("DistanceY", -1, 1, 4, 2, 20.106539),
    Sketcher.Constraint("DistanceX", 0, 2, -1, 1, 33.651438),
    Sketcher.Constraint("DistanceY", -1, 1, 0, 2, 23.562336),
])
pocket7 = doc.addObject("PartDesign::Pocket", "Pocket006")
body.addObject(pocket7)
pocket7.Profile = sketch15
pocket7.Length = 41

# Sketch on YZ plane
sketch16 = doc.addObject("Sketcher::SketchObject", "Sketch015")
body.addObject(sketch16)
sketch16.AttachmentSupport = (doc.YZ_Plane, [""])
sketch16.MapMode = "FlatFace"
sketch16.AttachmentOffset = App.Placement(Vector(0, 0, -42.651438), App.Rotation())
sketch16.addGeometry([
    Part.LineSegment(Vector(44.529252, 7.492385, 0), Vector(36.146663, 1, 0)),  # 0
    Part.LineSegment(Vector(36.146663, 1, 0), Vector(36.146663, 22.205551, 0)),  # 1
    Part.LineSegment(Vector(36.146663, 22.205551, 0), Vector(44.529252, 15.713166, 0)),  # 2
    Part.ArcOfCircle(Part.Circle(Vector(41.34572, 11.602776, 0), Vector(0, 0, 1), 5.199056), math.radians(-52.241917), math.radians(52.241917)),  # 3
    Part.ArcOfCircle(Part.Circle(Vector(41.34572, 11.602776, 0), Vector(0, 0, 1), 2.420475), math.radians(90), math.radians(180)),  # 4
    Part.ArcOfCircle(Part.Circle(Vector(41.34572, 11.602776, 0), Vector(0, 0, 1), 2.420475), math.radians(180), math.radians(450)),  # 5
], False)
sketch16.addConstraint([
    Sketcher.Constraint("Coincident", 0, 2, 1, 1),
    Sketcher.Constraint("Coincident", 1, 2, 2, 1),
    Sketcher.Constraint("Tangent", 2, 2, 3, 2),
    Sketcher.Constraint("Tangent", 3, 1, 0, 1),
    Sketcher.Constraint("Tangent", 4, 1, 5, 2),
    Sketcher.Constraint("Coincident", 5, 1, 4, 2),
    Sketcher.Constraint("Vertical", 1),
    Sketcher.Constraint("Coincident", 4, 3, 3, 3),
    Sketcher.Constraint("Horizontal", 4, 3, 5, 1),
    Sketcher.Constraint("Vertical", 2, 2, 3, 1),
    Sketcher.Constraint("Vertical", 5, 3, 4, 1),
    Sketcher.Constraint("DistanceY", -1, 1, 0, 2, 1.0),
    Sketcher.Constraint("Radius", 3, 5.199056),
    Sketcher.Constraint("Radius", 4, 2.420475),
    Sketcher.Constraint("DistanceY", 1, 1, 1, 2, 21.205551),
    Sketcher.Constraint("DistanceX", -1, 1, 3, 3, 41.34572),
    Sketcher.Constraint("DistanceX", -1, 1, 2, 2, 44.529252),
])
pad9 = doc.addObject("PartDesign::Pad", "Pad008")
body.addObject(pad9)
pad9.Profile = sketch16
pad9.Length = 5

# Sketch on YZ plane
sketch17 = doc.addObject("Sketcher::SketchObject", "Sketch016")
body.addObject(sketch17)
sketch17.AttachmentSupport = (doc.YZ_Plane, [""])
sketch17.MapMode = "FlatFace"
sketch17.AttachmentOffset = App.Placement(Vector(0, 0, -42.651438), App.Rotation())
sketch17.addGeometry(Part.Circle(Vector(2.878953, 11.602776, 0), Vector(0, 0, 1), 2.420475), False)
sketch17.addConstraint([
    Sketcher.Constraint("Diameter", 0, 4.840949),
    Sketcher.Constraint("DistanceX", -1, 1, 0, 3, 2.878953),
    Sketcher.Constraint("DistanceY", -1, 1, 0, 3, 11.602776),
])
pocket8 = doc.addObject("PartDesign::Pocket", "Pocket007")
body.addObject(pocket8)
pocket8.Profile = sketch17
pocket8.Length = 5
pocket8.Reversed = True

# Sketch on YZ plane
sketch18 = doc.addObject("Sketcher::SketchObject", "Sketch017")
body.addObject(sketch18)
sketch18.AttachmentSupport = (doc.YZ_Plane, [""])
sketch18.MapMode = "FlatFace"
sketch18.AttachmentOffset = App.Placement(Vector(0, 0, -42.651438), App.Rotation())
sketch18.addGeometry([
    Part.Circle(Vector(41.34572, 11.602776, 0), Vector(0, 0, 1), 2.420475),
    Part.Circle(Vector(41.34572, 11.602776, 0), Vector(0, 0, 1), 1.7),
    Part.Circle(Vector(2.878953, 11.602776, 0), Vector(0, 0, 1), 2.420475),
    Part.Circle(Vector(2.878953, 11.602776, 0), Vector(0, 0, 1), 1.7),
], False)
sketch18.addConstraint([
    Sketcher.Constraint("Coincident", 1, 3, 0, 3),
    Sketcher.Constraint("Coincident", 3, 3, 2, 3),
    Sketcher.Constraint("Equal", 0, 2),
    Sketcher.Constraint("Equal", 1, 3),
    Sketcher.Constraint("Horizontal", 1, 3, 2, 3),
    Sketcher.Constraint("Diameter", 1, 3.4),
    Sketcher.Constraint("Diameter", 0, 4.840949),
    Sketcher.Constraint("DistanceX", -1, 1, 0, 3, 41.34572),
    Sketcher.Constraint("DistanceY", -1, 1, 0, 3, 11.602776),
    Sketcher.Constraint("DistanceX", -1, 1, 2, 3, 2.878953),
])
pad10 = doc.addObject("PartDesign::Pad", "Pad009")
body.addObject(pad10)
pad10.Profile = sketch18
pad10.Length = 5

# Sketch on XY plane
sketch19 = doc.addObject("Sketcher::SketchObject", "Sketch018")
body.addObject(sketch19)
sketch19.AttachmentSupport = (doc.XY_Plane, [""])
sketch19.MapMode = "FlatFace"
sketch19.AttachmentOffset = App.Placement(Vector(0, 0, 54.3), App.Rotation())
add_polygon(sketch19, [(-22.651438, 26.834437), (-22.651438, 16.834437), (-18.651438, 16.834437), (-18.651438, 26.834437)])  # lines 0-3
sketch19.addConstraint([
    Sketcher.Constraint("Vertical", 0),
    Sketcher.Constraint("Horizontal", 1),
    Sketcher.Constraint("Vertical", 2),
    Sketcher.Constraint("Horizontal", 3),
    Sketcher.Constraint("DistanceX", 1, 1, 1, 2, 4.0),
    Sketcher.Constraint("DistanceY", 0, 2, 0, 1, 10.0),
    Sketcher.Constraint("DistanceX", 0, 2, -1, 1, 22.651438),
    Sketcher.Constraint("DistanceY", -1, 1, 0, 2, 16.834437),
])
pocket9 = doc.addObject("PartDesign::Pocket", "Pocket008")
body.addObject(pocket9)
pocket9.Profile = sketch19
pocket9.Length = 10

doc.recompute()
